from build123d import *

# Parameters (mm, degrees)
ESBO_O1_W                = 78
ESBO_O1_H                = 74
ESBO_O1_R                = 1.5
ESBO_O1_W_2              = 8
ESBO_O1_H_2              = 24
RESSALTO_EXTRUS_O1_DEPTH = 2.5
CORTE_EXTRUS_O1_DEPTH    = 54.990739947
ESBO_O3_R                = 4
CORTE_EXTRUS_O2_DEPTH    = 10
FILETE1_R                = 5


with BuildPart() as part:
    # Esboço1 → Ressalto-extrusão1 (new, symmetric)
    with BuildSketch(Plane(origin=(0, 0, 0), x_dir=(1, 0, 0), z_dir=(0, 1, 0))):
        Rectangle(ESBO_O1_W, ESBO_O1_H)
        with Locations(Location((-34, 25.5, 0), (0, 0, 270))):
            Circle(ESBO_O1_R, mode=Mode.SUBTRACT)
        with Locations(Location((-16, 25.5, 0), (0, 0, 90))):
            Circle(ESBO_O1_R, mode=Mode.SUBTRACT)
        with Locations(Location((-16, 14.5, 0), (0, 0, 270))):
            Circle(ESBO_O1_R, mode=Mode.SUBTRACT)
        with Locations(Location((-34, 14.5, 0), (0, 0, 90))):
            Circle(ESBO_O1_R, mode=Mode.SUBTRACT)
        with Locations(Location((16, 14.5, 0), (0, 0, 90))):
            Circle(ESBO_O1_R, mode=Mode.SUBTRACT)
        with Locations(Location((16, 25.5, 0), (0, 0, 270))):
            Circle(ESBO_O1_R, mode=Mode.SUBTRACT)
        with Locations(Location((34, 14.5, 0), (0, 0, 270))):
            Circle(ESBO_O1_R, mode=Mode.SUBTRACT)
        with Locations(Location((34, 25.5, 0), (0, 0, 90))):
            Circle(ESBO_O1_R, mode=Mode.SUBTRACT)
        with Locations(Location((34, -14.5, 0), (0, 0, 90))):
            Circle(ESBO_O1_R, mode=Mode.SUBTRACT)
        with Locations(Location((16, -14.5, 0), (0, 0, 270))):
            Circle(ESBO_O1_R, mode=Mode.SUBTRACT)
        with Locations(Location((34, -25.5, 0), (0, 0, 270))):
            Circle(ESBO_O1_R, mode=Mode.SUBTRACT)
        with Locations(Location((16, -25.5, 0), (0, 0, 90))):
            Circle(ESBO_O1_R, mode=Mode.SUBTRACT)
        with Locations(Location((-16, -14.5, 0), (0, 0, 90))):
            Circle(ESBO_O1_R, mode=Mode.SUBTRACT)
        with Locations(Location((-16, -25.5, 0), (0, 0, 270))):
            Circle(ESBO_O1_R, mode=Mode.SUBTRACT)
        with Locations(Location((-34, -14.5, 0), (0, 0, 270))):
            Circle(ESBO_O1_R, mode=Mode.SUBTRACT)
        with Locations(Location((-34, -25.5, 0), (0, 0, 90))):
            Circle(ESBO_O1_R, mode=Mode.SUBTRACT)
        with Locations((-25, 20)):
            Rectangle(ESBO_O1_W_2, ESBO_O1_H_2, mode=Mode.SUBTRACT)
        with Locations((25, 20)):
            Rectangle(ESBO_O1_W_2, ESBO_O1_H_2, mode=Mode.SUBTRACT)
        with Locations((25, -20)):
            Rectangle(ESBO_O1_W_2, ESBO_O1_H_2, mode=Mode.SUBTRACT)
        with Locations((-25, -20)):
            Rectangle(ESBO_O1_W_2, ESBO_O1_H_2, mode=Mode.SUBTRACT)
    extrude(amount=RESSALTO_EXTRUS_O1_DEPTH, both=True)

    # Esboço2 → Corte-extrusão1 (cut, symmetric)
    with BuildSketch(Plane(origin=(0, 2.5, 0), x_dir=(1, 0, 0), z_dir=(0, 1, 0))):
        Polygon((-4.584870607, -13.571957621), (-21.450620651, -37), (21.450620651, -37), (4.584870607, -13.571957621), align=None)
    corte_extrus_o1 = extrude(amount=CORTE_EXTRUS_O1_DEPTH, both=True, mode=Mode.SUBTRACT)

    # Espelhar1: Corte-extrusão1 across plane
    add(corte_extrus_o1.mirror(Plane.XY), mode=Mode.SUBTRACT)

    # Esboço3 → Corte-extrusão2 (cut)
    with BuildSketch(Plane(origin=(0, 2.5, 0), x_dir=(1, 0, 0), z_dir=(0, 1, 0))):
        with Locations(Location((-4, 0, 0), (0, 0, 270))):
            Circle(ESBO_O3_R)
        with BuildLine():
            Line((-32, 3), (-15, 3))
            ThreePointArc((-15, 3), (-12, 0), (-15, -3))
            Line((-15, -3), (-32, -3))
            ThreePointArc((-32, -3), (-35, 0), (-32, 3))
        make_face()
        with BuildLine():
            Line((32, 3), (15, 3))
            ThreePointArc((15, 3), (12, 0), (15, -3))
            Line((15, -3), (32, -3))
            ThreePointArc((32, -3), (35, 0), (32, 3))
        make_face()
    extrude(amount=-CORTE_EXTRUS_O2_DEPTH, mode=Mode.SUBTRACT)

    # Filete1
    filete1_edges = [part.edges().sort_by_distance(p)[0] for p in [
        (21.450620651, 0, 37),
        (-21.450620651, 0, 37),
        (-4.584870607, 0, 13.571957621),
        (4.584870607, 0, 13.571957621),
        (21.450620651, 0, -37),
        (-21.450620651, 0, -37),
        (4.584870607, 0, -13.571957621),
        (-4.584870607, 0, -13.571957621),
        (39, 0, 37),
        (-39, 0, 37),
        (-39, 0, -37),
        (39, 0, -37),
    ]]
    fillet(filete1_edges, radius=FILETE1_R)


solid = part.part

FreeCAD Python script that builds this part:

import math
import FreeCAD as App
import Part
import Sketcher
from FreeCAD import Vector
Q = App.Units.Quantity


def edges_at(feature, points):
    """Names of the edges that pass closest to the given points."""
    edges = feature.Shape.Edges
    near = lambda p: min(range(len(edges)), key=lambda i: edges[i].distToShape(Part.Vertex(*p))[0])
    return sorted({f"Edge{near(p) + 1}" for p in points})

doc = App.newDocument("Part")
params = doc.addObject("Spreadsheet::Sheet", "Params")
for row, (alias, value) in enumerate([
    ("sketch1_diameter", "3 mm"),
    ("sketch1_width", "78 mm"),
    ("sketch1_width2", "8 mm"),
    ("sketch1_height", "74 mm"),
    ("sketch1_height2", "24 mm"),
    ("pad1_length", "5 mm"),
    ("pocket1_length", "109.98148 mm"),
    ("sketch3_diameter", "8 mm"),
    ("sketch3_radius", "3 mm"),
    ("sketch3_width", "17 mm"),
    ("pocket2_length", "10 mm"),
    ("fillet_radius", "5 mm"),
], start=1):
    params.set(f"A{row}", alias)
    params.set(f"B{row}", "=" + value)
    params.setAlias(f"B{row}", alias)

body = doc.addObject("PartDesign::Body", "Body")

# Sketch on XZ plane
sketch1 = body.newObject("Sketcher::SketchObject", "Sketch")
sketch1.AttachmentSupport = (doc.getObject("XZ_Plane"), [""])
sketch1.MapMode = "FlatFace"
sketch1.addGeometry(Part.LineSegment(Vector(-39, -37, 0), Vector(-39, 37, 0)), False)
sketch1.addGeometry(Part.LineSegment(Vector(-39, 37, 0), Vector(39, 37, 0)), False)
sketch1.addGeometry(Part.LineSegment(Vector(39, 37, 0), Vector(39, -37, 0)), False)
sketch1.addGeometry(Part.LineSegment(Vector(39, -37, 0), Vector(-39, -37, 0)), False)
sketch1.addGeometry(Part.Circle(Vector(-34, 25.5, 0), Vector(0, 0, 1), 1.5), False)
sketch1.addGeometry(Part.LineSegment(Vector(-21, 32, 0), Vector(-29, 32, 0)), False)
sketch1.addGeometry(Part.LineSegment(Vector(-29, 32, 0), Vector(-29, 8, 0)), False)
sketch1.addGeometry(Part.LineSegment(Vector(-29, 8, 0), Vector(-21, 8, 0)), False)
sketch1.addGeometry(Part.LineSegment(Vector(-21, 8, 0), Vector(-21, 32, 0)), False)
sketch1.addGeometry(Part.Circle(Vector(-16, 25.5, 0), Vector(0, 0, 1), 1.5), False)
sketch1.addGeometry(Part.Circle(Vector(-34, 14.5, 0), Vector(0, 0, 1), 1.5), False)
sketch1.addGeometry(Part.Circle(Vector(-16, 14.5, 0), Vector(0, 0, 1), 1.5), False)
sketch1.addGeometry(Part.Circle(Vector(16, 25.5, 0), Vector(0, 0, 1), 1.5), False)
sketch1.addGeometry(Part.Circle(Vector(34, 25.5, 0), Vector(0, 0, 1), 1.5), False)
sketch1.addGeometry(Part.LineSegment(Vector(29, 32, 0), Vector(21, 32, 0)), False)
sketch1.addGeometry(Part.LineSegment(Vector(21, 32, 0), Vector(21, 8, 0)), False)
sketch1.addGeometry(Part.LineSegment(Vector(21, 8, 0), Vector(29, 8, 0)), False)
sketch1.addGeometry(Part.LineSegment(Vector(29, 8, 0), Vector(29, 32, 0)), False)
sketch1.addGeometry(Part.Circle(Vector(16, 14.5, 0), Vector(0, 0, 1), 1.5), False)
sketch1.addGeometry(Part.Circle(Vector(34, 14.5, 0), Vector(0, 0, 1), 1.5), False)
sketch1.addGeometry(Part.Circle(Vector(-34, -14.5, 0), Vector(0, 0, 1), 1.5), False)
sketch1.addGeometry(Part.Circle(Vector(-16, -14.5, 0), Vector(0, 0, 1), 1.5), False)
sketch1.addGeometry(Part.LineSegment(Vector(-21, -8, 0), Vector(-29, -8, 0)), False)
sketch1.addGeometry(Part.LineSegment(Vector(-29, -8, 0), Vector(-29, -32, 0)), False)
sketch1.addGeometry(Part.LineSegment(Vector(-29, -32, 0), Vector(-21, -32, 0)), False)
sketch1.addGeometry(Part.LineSegment(Vector(-21, -32, 0), Vector(-21, -8, 0)), False)
sketch1.addGeometry(Part.Circle(Vector(-34, -25.5, 0), Vector(0, 0, 1), 1.5), False)
sketch1.addGeometry(Part.Circle(Vector(-16, -25.5, 0), Vector(0, 0, 1), 1.5), False)
sketch1.addGeometry(Part.Circle(Vector(16, -14.5, 0), Vector(0, 0, 1), 1.5), False)
sketch1.addGeometry(Part.Circle(Vector(34, -14.5, 0), Vector(0, 0, 1), 1.5), False)
sketch1.addGeometry(Part.Circle(Vector(16, -25.5, 0), Vector(0, 0, 1), 1.5), False)
sketch1.addGeometry(Part.LineSegment(Vector(29, -8, 0), Vector(21, -8, 0)), False)
sketch1.addGeometry(Part.LineSegment(Vector(21, -8, 0), Vector(21, -32, 0)), False)
sketch1.addGeometry(Part.LineSegment(Vector(21, -32, 0), Vector(29, -32, 0)), False)
sketch1.addGeometry(Part.LineSegment(Vector(29, -32, 0), Vector(29, -8, 0)), False)
sketch1.addGeometry(Part.Circle(Vector(34, -25.5, 0), Vector(0, 0, 1), 1.5), False)
sketch1.addConstraint(Sketcher.Constraint("Coincident", 0, 2, 1, 1))
sketch1.addConstraint(Sketcher.Constraint("Coincident", 1, 2, 2, 1))
sketch1.addConstraint(Sketcher.Constraint("Coincident", 2, 2, 3, 1))
sketch1.addConstraint(Sketcher.Constraint("Coincident", 3, 2, 0, 1))
sketch1.addConstraint(Sketcher.Constraint("Coincident", 5, 2, 6, 1))
sketch1.addConstraint(Sketcher.Constraint("Coincident", 6, 2, 7, 1))
sketch1.addConstraint(Sketcher.Constraint("Coincident", 7, 2, 8, 1))
sketch1.addConstraint(Sketcher.Constraint("Coincident", 8, 2, 5, 1))
sketch1.addConstraint(Sketcher.Constraint("Coincident", 14, 2, 15, 1))
sketch1.addConstraint(Sketcher.Constraint("Coincident", 15, 2, 16, 1))
sketch1.addConstraint(Sketcher.Constraint("Coincident", 16, 2, 17, 1))
sketch1.addConstraint(Sketcher.Constraint("Coincident", 17, 2, 14, 1))
sketch1.addConstraint(Sketcher.Constraint("Coincident", 22, 2, 23, 1))
sketch1.addConstraint(Sketcher.Constraint("Coincident", 23, 2, 24, 1))
sketch1.addConstraint(Sketcher.Constraint("Coincident", 24, 2, 25, 1))
sketch1.addConstraint(Sketcher.Constraint("Coincident", 25, 2, 22, 1))
sketch1.addConstraint(Sketcher.Constraint("Coincident", 31, 2, 32, 1))
sketch1.addConstraint(Sketcher.Constraint("Coincident", 32, 2, 33, 1))
sketch1.addConstraint(Sketcher.Constraint("Coincident", 33, 2, 34, 1))
sketch1.addConstraint(Sketcher.Constraint("Coincident", 34, 2, 31, 1))
sketch1.addConstraint(Sketcher.Constraint("Vertical", 0))
sketch1.addConstraint(Sketcher.Constraint("Horizontal", 1))
sketch1.addConstraint(Sketcher.Constraint("Vertical", 2))
sketch1.addConstraint(Sketcher.Constraint("Horizontal", 3))
sketch1.addConstraint(Sketcher.Constraint("Horizontal", 5))
sketch1.addConstraint(Sketcher.Constraint("Vertical", 6))
sketch1.addConstraint(Sketcher.Constraint("Horizontal", 7))
sketch1.addConstraint(Sketcher.Constraint("Vertical", 8))
sketch1.addConstraint(Sketcher.Constraint("Horizontal", 14))
sketch1.addConstraint(Sketcher.Constraint("Vertical", 15))
sketch1.addConstraint(Sketcher.Constraint("Horizontal", 16))
sketch1.addConstraint(Sketcher.Constraint("Vertical", 17))
sketch1.addConstraint(Sketcher.Constraint("Horizontal", 22))
sketch1.addConstraint(Sketcher.Constraint("Vertical", 23))
sketch1.addConstraint(Sketcher.Constraint("Horizontal", 24))
sketch1.addConstraint(Sketcher.Constraint("Vertical", 25))
sketch1.addConstraint(Sketcher.Constraint("Horizontal", 31))
sketch1.addConstraint(Sketcher.Constraint("Vertical", 32))
sketch1.addConstraint(Sketcher.Constraint("Horizontal", 33))
sketch1.addConstraint(Sketcher.Constraint("Vertical", 34))
sketch1.addConstraint(Sketcher.Constraint("Equal", 4, 9))
sketch1.addConstraint(Sketcher.Constraint("Equal", 9, 10))
sketch1.addConstraint(Sketcher.Constraint("Equal", 10, 11))
sketch1.addConstraint(Sketcher.Constraint("Equal", 11, 12))
sketch1.addConstraint(Sketcher.Constraint("Equal", 12, 13))
sketch1.addConstraint(Sketcher.Constraint("Equal", 13, 18))
sketch1.addConstraint(Sketcher.Constraint("Equal", 18, 19))
sketch1.addConstraint(Sketcher.Constraint("Equal", 19, 20))
sketch1.addConstraint(Sketcher.Constraint("Equal", 20, 21))
sketch1.addConstraint(Sketcher.Constraint("Equal", 21, 26))
sketch1.addConstraint(Sketcher.Constraint("Equal", 26, 27))
sketch1.addConstraint(Sketcher.Constraint("Equal", 27, 28))
sketch1.addConstraint(Sketcher.Constraint("Equal", 28, 29))
sketch1.addConstraint(Sketcher.Constraint("Equal", 29, 30))
sketch1.addConstraint(Sketcher.Constraint("Equal", 30, 35))
sketch1.addConstraint(Sketcher.Constraint("Symmetric", 19, 3, 20, 3, -1, 1))
sketch1.addConstraint(Sketcher.Constraint("Symmetric", 18, 3, 21, 3, -1, 1))
sketch1.addConstraint(Sketcher.Constraint("Symmetric", 13, 3, 26, 3, -1, 1))
sketch1.addConstraint(Sketcher.Constraint("Symmetric", 12, 3, 27, 3, -1, 1))
sketch1.addConstraint(Sketcher.Constraint("Symmetric", 11, 3, 28, 3, -1, 1))
sketch1.addConstraint(Sketcher.Constraint("Symmetric", 10, 3, 29, 3, -1, 1))
sketch1.addConstraint(Sketcher.Constraint("Symmetric", 9, 3, 30, 3, -1, 1))
sketch1.addConstraint(Sketcher.Constraint("Symmetric", 4, 3, 35, 3, -1, 1))
sketch1.addConstraint(Sketcher.Constraint("Symmetric", 0, 2, 2, 2, -1, 1))
sketch1.addConstraint(Sketcher.Constraint("Symmetric", 16, 2, 22, 2, -1, 1))
sketch1.addConstraint(Sketcher.Constraint("Symmetric", 14, 2, 24, 2, -1, 1))
sketch1.addConstraint(Sketcher.Constraint("Symmetric", 7, 2, 31, 2, -1, 1))
sketch1.addConstraint(Sketcher.Constraint("Symmetric", 5, 2, 33, 2, -1, 1))
sketch1.addConstraint(Sketcher.Constraint("Symmetric", 9, 3, 12, 3, -2))
sketch1.addConstraint(Sketcher.Constraint("Symmetric", 4, 3, 13, 3, -2))
sketch1.addConstraint(Sketcher.Constraint("Symmetric", 11, 3, 18, 3, -2))
sketch1.addConstraint(Sketcher.Constraint("Symmetric", 10, 3, 19, 3, -2))
sketch1.addConstraint(Sketcher.Constraint("Symmetric", 8, 2, 14, 2, -2))
sketch1.addConstraint(Sketcher.Constraint("Symmetric", 6, 2, 16, 2, -2))
sketch1.addConstraint(Sketcher.Constraint("Horizontal", 4, 3, 9, 3))
sketch1.addConstraint(Sketcher.Constraint("Horizontal", 10, 3, 11, 3))
sketch1.addConstraint(Sketcher.Constraint("Vertical", 4, 3, 10, 3))
sketch1.addConstraint(Sketcher.Constraint("Vertical", 9, 3, 11, 3))
sketch1.addConstraint(Sketcher.Constraint("Diameter", 4, Q("3 mm")))
sketch1.addConstraint(Sketcher.Constraint("DistanceX", 1, 1, 1, 2, Q("78 mm")))
sketch1.addConstraint(Sketcher.Constraint("DistanceX", 5, 2, 5, 1, Q("8 mm")))
sketch1.addConstraint(Sketcher.Constraint("DistanceY", 0, 1, 0, 2, Q("74 mm")))
sketch1.addConstraint(Sketcher.Constraint("DistanceY", 6, 2, 6, 1, Q("24 mm")))
sketch1.addConstraint(Sketcher.Constraint("DistanceX", 4, 3, -1, 1, Q("34 mm")))
sketch1.addConstraint(Sketcher.Constraint("DistanceX", 9, 3, -1, 1, Q("16 mm")))
sketch1.addConstraint(Sketcher.Constraint("DistanceX", 5, 2, -1, 1, Q("29 mm")))
sketch1.addConstraint(Sketcher.Constraint("DistanceY", -1, 1, 5, 2, Q("32 mm")))
sketch1.addConstraint(Sketcher.Constraint("DistanceY", 10, 3, 4, 3, Q("11 mm")))
sketch1.addConstraint(Sketcher.Constraint("DistanceY", 20, 3, 10, 3, Q("29 mm")))
sketch1.setExpression("Constraints[78]", "Params.sketch1_diameter")
sketch1.setExpression("Constraints[79]", "Params.sketch1_width")
sketch1.setExpression("Constraints[80]", "Params.sketch1_width2")
sketch1.setExpression("Constraints[81]", "Params.sketch1_height")
sketch1.setExpression("Constraints[82]", "Params.sketch1_height2")
pad1 = body.newObject("PartDesign::Pad", "Pad")
pad1.Profile = sketch1
pad1.setExpression("Length", "Params.pad1_length")
pad1.Midplane = True

# Sketch on XZ plane
sketch2 = body.newObject("Sketcher::SketchObject", "Sketch001")
sketch2.AttachmentSupport = (doc.getObject("XZ_Plane"), [""])
sketch2.MapMode = "FlatFace"
sketch2.AttachmentOffset = App.Placement(Vector(0, 0, -2.5), App.Rotation())
sketch2.addGeometry(Part.LineSegment(Vector(-5, 14, 0), Vector(-21, 37, 0)), False)
sketch2.addGeometry(Part.LineSegment(Vector(-21, 37, 0), Vector(21, 37, 0)), False)
sketch2.addGeometry(Part.LineSegment(Vector(21, 37, 0), Vector(5, 14, 0)), False)
sketch2.addGeometry(Part.LineSegment(Vector(5, 14, 0), Vector(-5, 14, 0)), False)
sketch2.addConstraint(Sketcher.Constraint("Coincident", 0, 2, 1, 1))
sketch2.addConstraint(Sketcher.Constraint("Coincident", 1, 2, 2, 1))
sketch2.addConstraint(Sketcher.Constraint("Coincident", 2, 2, 3, 1))
sketch2.addConstraint(Sketcher.Constraint("Coincident", 3, 2, 0, 1))
sketch2.addConstraint(Sketcher.Constraint("Horizontal", 1))
sketch2.addConstraint(Sketcher.Constraint("Horizontal", 3))
sketch2.addConstraint(Sketcher.Constraint("Equal", 0, 2))
sketch2.addConstraint(Sketcher.Constraint("DistanceY", -1, 1, 0, 2, Q("37 mm")))
sketch2.addConstraint(Sketcher.Constraint("Distance", 0, Q("28.867398 mm")))
sketch2.addConstraint(Sketcher.Constraint("DistanceX", 1, 1, 1, 2, Q("42.901241 mm")))
sketch2.addConstraint(Sketcher.Constraint("DistanceX", 3, 2, 3, 1, Q("9.169741 mm")))
sketch2.addConstraint(Sketcher.Constraint("DistanceX", 0, 2, -1, 1, Q("21.450621 mm")))
pocket1 = body.newObject("PartDesign::Pocket", "Pocket")
pocket1.Profile = sketch2
pocket1.setExpression("Length", "Params.pocket1_length")
pocket1.Midplane = True
doc.recompute()

mirrored = body.newObject("PartDesign::Mirrored", "Mirrored")
mirrored.Originals = [pocket1]
mirrored.MirrorPlane = (doc.getObject("XY_Plane"), [""])
body.Tip = mirrored

# Sketch on XZ plane
sketch3 = body.newObject("Sketcher::SketchObject", "Sketch002")
sketch3.AttachmentSupport = (doc.getObject("XZ_Plane"), [""])
sketch3.MapMode = "FlatFace"
sketch3.AttachmentOffset = App.Placement(Vector(0, 0, -2.5), App.Rotation())
sketch3.addGeometry(Part.Circle(Vector(-4, 0, 0), Vector(0, 0, 1), 4), False)
sketch3.addGeometry(Part.LineSegment(Vector(-15, -3, 0), Vector(-32, -3, 0)), False)
sketch3.addGeometry(Part.ArcOfCircle(Part.Circle(Vector(-32, 0, 0), Vector(0, 0, 1), 3), math.radians(90), math.radians(270)), False)
sketch3.addGeometry(Part.LineSegment(Vector(-32, 3, 0), Vector(-15, 3, 0)), False)
sketch3.addGeometry(Part.ArcOfCircle(Part.Circle(Vector(-15, 0, 0), Vector(0, 0, 1), 3), math.radians(-90), math.radians(90)), False)
sketch3.addGeometry(Part.LineSegment(Vector(32, -3, 0), Vector(15, -3, 0)), False)
sketch3.addGeometry(Part.ArcOfCircle(Part.Circle(Vector(15, 0, 0), Vector(0, 0, 1), 3), math.radians(90), math.radians(270)), False)
sketch3.addGeometry(Part.LineSegment(Vector(15, 3, 0), Vector(32, 3, 0)), False)
sketch3.addGeometry(Part.ArcOfCircle(Part.Circle(Vector(32, 0, 0), Vector(0, 0, 1), 3), math.radians(-90), math.radians(90)), False)
sketch3.addConstraint(Sketcher.Constraint("Tangent", 1, 2, 2, 2))
sketch3.addConstraint(Sketcher.Constraint("Tangent", 2, 1, 3, 1))
sketch3.addConstraint(Sketcher.Constraint("Tangent", 3, 2, 4, 2))
sketch3.addConstraint(Sketcher.Constraint("Tangent", 4, 1, 1, 1))
sketch3.addConstraint(Sketcher.Constraint("Tangent", 5, 2, 6, 2))
sketch3.addConstraint(Sketcher.Constraint("Tangent", 6, 1, 7, 1))
sketch3.addConstraint(Sketcher.Constraint("Tangent", 7, 2, 8, 2))
sketch3.addConstraint(Sketcher.Constraint("Tangent", 8, 1, 5, 1))
sketch3.addConstraint(Sketcher.Constraint("Horizontal", 1))
sketch3.addConstraint(Sketcher.Constraint("Horizontal", 3))
sketch3.addConstraint(Sketcher.Constraint("Horizontal", 5))
sketch3.addConstraint(Sketcher.Constraint("Horizontal", 7))
sketch3.addConstraint(Sketcher.Constraint("Equal", 4, 6))
sketch3.addConstraint(Sketcher.Constraint("Symmetric", 4, 3, 6, 3, -1, 1))
sketch3.addConstraint(Sketcher.Constraint("Symmetric", 2, 3, 8, 3, -2))
sketch3.addConstraint(Sketcher.Constraint("PointOnObject", 0, 3, -1))
sketch3.addConstraint(Sketcher.Constraint("Diameter", 0, Q("8 mm")))
sketch3.addConstraint(Sketcher.Constraint("Radius", 2, Q("3 mm")))
sketch3.addConstraint(Sketcher.Constraint("DistanceX", 1, 2, 1, 1, Q("17 mm")))
sketch3.addConstraint(Sketcher.Constraint("DistanceX", 0, 3, -1, 1, Q("4 mm")))
sketch3.addConstraint(Sketcher.Constraint("DistanceX", 2, 3, -1, 1, Q("32 mm")))
sketch3.setExpression("Constraints[16]", "Params.sketch3_diameter")
sketch3.setExpression("Constraints[17]", "Params.sketch3_radius")
sketch3.setExpression("Constraints[18]", "Params.sketch3_width")
pocket2 = body.newObject("PartDesign::Pocket", "Pocket001")
pocket2.Profile = sketch3
pocket2.setExpression("Length", "Params.pocket2_length")
pocket2.Reversed = True
doc.recompute()

fillet = body.newObject("PartDesign::Fillet", "Fillet")
fillet.Base = (pocket2, edges_at(pocket2, [
    (21.451, 0, 37),
    (-21.451, 0, 37),
    (-4.585, 0, 13.572),
    (4.585, 0, 13.572),
    (21.451, 0, -37),
    (-21.451, 0, -37),
    (4.585, 0, -13.572),
    (-4.585, 0, -13.572),
    (39, 0, 37),
    (-39, 0, 37),
    (-39, 0, -37),
    (39, 0, -37),
]))
fillet.setExpression("Radius", "Params.fillet_radius")

doc.recompute()
